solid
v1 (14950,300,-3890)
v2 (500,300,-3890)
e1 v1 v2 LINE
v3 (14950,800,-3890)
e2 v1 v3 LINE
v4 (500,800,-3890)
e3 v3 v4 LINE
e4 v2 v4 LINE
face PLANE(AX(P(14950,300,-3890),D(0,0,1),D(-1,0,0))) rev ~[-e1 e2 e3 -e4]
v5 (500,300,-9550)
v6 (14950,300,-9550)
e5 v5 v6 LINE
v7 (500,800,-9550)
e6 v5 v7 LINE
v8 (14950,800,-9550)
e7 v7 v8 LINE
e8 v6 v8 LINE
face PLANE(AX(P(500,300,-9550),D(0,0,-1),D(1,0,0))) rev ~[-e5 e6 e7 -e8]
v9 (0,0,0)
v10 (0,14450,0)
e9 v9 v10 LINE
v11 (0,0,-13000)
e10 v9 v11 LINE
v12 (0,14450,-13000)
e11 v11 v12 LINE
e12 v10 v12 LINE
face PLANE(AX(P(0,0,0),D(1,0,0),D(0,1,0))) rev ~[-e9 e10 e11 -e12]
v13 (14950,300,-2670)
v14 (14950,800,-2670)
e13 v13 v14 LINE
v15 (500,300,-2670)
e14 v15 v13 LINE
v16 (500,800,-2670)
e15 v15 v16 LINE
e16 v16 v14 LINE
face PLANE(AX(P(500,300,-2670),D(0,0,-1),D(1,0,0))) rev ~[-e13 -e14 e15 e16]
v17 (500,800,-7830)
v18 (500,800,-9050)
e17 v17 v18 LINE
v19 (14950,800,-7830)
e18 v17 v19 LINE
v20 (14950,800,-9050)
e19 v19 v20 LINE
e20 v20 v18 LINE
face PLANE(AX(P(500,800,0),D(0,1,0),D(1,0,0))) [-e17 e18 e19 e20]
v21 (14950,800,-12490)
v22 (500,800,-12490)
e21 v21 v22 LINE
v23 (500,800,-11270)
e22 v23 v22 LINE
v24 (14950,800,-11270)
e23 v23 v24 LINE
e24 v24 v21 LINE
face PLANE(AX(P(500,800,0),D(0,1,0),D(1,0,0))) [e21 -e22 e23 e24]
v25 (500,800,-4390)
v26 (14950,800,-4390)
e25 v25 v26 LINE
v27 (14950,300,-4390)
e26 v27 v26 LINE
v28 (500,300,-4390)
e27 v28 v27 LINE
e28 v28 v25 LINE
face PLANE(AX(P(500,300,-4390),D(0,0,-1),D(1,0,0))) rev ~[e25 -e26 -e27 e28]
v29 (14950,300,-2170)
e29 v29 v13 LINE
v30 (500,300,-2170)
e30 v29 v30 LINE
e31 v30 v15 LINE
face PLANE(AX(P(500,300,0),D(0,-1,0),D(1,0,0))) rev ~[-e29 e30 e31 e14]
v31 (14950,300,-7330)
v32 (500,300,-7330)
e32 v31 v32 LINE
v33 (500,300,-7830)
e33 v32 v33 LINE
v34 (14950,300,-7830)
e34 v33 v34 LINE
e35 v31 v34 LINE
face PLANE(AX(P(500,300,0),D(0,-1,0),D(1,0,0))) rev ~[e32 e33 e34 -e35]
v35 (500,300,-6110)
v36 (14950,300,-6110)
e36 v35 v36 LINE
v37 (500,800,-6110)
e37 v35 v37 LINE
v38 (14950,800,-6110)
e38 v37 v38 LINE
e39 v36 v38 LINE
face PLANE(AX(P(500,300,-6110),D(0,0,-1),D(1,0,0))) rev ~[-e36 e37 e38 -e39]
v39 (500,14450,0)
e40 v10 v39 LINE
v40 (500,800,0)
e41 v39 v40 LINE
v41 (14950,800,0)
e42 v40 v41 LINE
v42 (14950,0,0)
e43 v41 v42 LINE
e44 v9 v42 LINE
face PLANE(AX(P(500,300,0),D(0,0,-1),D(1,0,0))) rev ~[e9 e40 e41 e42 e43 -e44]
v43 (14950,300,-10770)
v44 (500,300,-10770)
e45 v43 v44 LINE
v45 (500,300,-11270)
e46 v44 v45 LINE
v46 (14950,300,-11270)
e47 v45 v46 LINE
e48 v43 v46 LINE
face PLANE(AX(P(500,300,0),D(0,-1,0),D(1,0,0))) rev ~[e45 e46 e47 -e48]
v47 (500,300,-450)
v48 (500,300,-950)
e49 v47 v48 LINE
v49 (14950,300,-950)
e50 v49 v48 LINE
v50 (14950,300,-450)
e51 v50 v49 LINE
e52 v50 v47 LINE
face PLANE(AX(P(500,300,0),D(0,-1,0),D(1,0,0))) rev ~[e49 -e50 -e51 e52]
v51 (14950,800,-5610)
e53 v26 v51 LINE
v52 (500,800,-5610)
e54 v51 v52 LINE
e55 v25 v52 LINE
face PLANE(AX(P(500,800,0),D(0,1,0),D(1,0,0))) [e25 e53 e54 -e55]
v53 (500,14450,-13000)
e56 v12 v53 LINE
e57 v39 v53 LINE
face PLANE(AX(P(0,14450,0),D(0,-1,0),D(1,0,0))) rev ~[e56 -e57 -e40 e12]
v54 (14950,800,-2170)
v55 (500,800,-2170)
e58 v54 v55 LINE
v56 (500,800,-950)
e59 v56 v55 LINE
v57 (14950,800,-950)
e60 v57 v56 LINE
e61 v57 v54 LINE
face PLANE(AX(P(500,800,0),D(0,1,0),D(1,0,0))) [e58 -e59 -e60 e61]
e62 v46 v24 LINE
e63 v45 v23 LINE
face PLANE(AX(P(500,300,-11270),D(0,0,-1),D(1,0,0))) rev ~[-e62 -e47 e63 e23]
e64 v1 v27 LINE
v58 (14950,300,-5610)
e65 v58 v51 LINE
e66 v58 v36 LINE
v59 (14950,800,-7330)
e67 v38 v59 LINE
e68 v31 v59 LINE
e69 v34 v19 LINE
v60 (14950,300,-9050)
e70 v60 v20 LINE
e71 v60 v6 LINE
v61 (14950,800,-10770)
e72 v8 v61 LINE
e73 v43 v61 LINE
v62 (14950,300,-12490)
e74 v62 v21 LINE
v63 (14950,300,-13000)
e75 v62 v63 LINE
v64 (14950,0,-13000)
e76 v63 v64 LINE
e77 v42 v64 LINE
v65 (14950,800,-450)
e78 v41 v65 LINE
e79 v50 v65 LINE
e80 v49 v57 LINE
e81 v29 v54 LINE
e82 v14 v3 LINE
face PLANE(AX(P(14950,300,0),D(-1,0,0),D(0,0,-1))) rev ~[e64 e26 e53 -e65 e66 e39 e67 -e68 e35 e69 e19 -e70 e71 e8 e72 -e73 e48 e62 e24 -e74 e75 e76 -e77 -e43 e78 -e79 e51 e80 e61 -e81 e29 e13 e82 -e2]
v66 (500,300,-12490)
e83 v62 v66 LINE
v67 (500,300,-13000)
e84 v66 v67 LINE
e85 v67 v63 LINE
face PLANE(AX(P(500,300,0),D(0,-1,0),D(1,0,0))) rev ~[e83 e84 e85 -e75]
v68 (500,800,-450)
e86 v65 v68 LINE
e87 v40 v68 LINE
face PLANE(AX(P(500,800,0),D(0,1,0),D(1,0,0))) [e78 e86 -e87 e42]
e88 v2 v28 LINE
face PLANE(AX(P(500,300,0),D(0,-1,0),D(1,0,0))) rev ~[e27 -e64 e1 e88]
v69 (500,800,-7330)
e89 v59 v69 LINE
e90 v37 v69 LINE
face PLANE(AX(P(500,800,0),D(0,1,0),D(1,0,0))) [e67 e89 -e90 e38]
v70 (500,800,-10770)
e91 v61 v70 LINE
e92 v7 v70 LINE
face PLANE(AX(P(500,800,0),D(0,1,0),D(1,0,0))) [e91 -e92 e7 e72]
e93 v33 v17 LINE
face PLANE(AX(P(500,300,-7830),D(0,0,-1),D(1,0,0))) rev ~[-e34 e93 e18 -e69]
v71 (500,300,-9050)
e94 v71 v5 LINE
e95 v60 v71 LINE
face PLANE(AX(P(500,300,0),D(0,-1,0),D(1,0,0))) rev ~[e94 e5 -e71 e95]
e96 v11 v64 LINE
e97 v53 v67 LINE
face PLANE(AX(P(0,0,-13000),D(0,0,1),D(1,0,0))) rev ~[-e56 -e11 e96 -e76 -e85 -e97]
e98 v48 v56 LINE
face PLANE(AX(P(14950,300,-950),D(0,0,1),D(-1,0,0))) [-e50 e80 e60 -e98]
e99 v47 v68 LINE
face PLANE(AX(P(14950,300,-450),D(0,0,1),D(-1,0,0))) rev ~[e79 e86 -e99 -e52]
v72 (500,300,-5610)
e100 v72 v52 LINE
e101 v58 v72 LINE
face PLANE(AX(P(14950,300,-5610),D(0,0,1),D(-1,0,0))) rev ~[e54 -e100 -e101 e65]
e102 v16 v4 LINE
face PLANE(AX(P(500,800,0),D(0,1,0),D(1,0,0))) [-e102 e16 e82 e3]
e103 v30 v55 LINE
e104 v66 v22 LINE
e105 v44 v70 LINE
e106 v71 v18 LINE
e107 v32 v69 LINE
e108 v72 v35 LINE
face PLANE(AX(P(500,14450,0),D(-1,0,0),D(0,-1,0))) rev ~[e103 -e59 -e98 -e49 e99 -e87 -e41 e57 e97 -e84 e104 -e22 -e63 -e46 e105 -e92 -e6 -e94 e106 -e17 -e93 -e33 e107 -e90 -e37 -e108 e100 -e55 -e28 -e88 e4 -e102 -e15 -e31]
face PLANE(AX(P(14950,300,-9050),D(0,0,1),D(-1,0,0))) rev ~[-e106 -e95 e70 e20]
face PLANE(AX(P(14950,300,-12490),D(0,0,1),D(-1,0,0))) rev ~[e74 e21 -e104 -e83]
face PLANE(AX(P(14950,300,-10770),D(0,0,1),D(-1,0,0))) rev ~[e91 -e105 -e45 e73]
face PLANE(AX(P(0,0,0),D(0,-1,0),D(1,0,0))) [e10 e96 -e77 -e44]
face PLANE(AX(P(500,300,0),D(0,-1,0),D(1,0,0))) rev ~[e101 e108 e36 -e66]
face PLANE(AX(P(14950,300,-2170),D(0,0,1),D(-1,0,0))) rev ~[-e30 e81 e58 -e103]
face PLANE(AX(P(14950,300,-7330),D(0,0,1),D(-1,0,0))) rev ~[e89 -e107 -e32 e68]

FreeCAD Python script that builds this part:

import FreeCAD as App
import Part
import Sketcher


def add_polygon(sketch, points):
    """Adds a closed chain of lines whose ends are joined by coincident constraints."""
    first, n = sketch.GeometryCount, len(points)
    for a, b in zip(points, points[1:] + points[:1]):
        sketch.addGeometry(Part.LineSegment(App.Vector(*a, 0), App.Vector(*b, 0)), False)
    for i in range(n):
        sketch.addConstraint(Sketcher.Constraint("Coincident", first + i, 2, first + (i + 1) % n, 1))

doc = App.newDocument("Part")
params = doc.addObject("Spreadsheet::Sheet", "Params")
for row, (alias, value) in enumerate([
    ("sketch1_width", "14450 mm"),
    ("sketch1_width2", "500 mm"),
    ("sketch1_height", "14150 mm"),
    ("pad1_length", "13000 mm"),
    ("sketch2_width", "14450 mm"),
    ("sketch2_height", "1220 mm"),
    ("pad2_length", "500 mm"),
    ("sketch3_height", "450 mm"),
    ("sketch3_width", "14450 mm"),
    ("pad3_length", "500 mm"),
], start=1):
    params.set(f"A{row}", alias)
    params.set(f"B{row}", "=" + value)
    params.setAlias(f"B{row}", alias)

body = doc.addObject("PartDesign::Body", "Body")

# Sketch on XY plane
sketch1 = doc.addObject("Sketcher::SketchObject", "Sketch")
body.addObject(sketch1)
sketch1.AttachmentSupport = (doc.XY_Plane, [""])
sketch1.MapMode = "FlatFace"
add_polygon(sketch1, [(0, 14450), (0, 0), (14950, 0), (14950, 300), (500, 300), (500, 14450)])  # lines 0-5
sketch1.addConstraint(Sketcher.Constraint("Vertical", 0))
sketch1.addConstraint(Sketcher.Constraint("Horizontal", 1))
sketch1.addConstraint(Sketcher.Constraint("Vertical", 2))
sketch1.addConstraint(Sketcher.Constraint("Horizontal", 3))
sketch1.addConstraint(Sketcher.Constraint("Vertical", 4))
sketch1.addConstraint(Sketcher.Constraint("Horizontal", 5))
sketch1.addConstraint(Sketcher.Constraint("Coincident", 0, 2, -1, 1))
sketch1.addConstraint(Sketcher.Constraint("Equal", 3, 0))
sketch1.addConstraint(Sketcher.Constraint("DistanceX", 3, 2, 3, 1, 14450.0))
sketch1.addConstraint(Sketcher.Constraint("DistanceX", 5, 2, 5, 1, 500.0))
sketch1.addConstraint(Sketcher.Constraint("DistanceY", 4, 1, 4, 2, 14150.0))
sketch1.setExpression("Constraints[14]", "Params.sketch1_width")
sketch1.setExpression("Constraints[15]", "Params.sketch1_width2")
sketch1.setExpression("Constraints[16]", "Params.sketch1_height")
pad1 = doc.addObject("PartDesign::Pad", "Pad")
body.addObject(pad1)
pad1.Profile = sketch1
pad1.setExpression("Length", "Params.pad1_length")
pad1.Reversed = True

# Sketch on XZ plane
sketch2 = doc.addObject("Sketcher::SketchObject", "Sketch001")
body.addObject(sketch2)
sketch2.AttachmentSupport = (doc.XZ_Plane, [""])
sketch2.MapMode = "FlatFace"
sketch2.AttachmentOffset = App.Placement(App.Vector(0, 0, -300), App.Rotation())
add_polygon(sketch2, [(500, -950), (14950, -950), (14950, -2170), (500, -2170)])  # lines 0-3
add_polygon(sketch2, [(500, -2670), (14950, -2670), (14950, -3890), (500, -3890)])  # lines 4-7
add_polygon(sketch2, [(500, -4390), (14950, -4390), (14950, -5610), (500, -5610)])  # lines 8-11
add_polygon(sketch2, [(500, -6110), (14950, -6110), (14950, -7330), (500, -7330)])  # lines 12-15
add_polygon(sketch2, [(500, -7830), (14950, -7830), (14950, -9050), (500, -9050)])  # lines 16-19
add_polygon(sketch2, [(500, -9550), (14950, -9550), (14950, -10770), (500, -10770)])  # lines 20-23
add_polygon(sketch2, [(500, -11270), (14950, -11270), (14950, -12490), (500, -12490)])  # lines 24-27
sketch2.addConstraint(Sketcher.Constraint("Horizontal", 0))
sketch2.addConstraint(Sketcher.Constraint("Vertical", 1))
sketch2.addConstraint(Sketcher.Constraint("Horizontal", 2))
sketch2.addConstraint(Sketcher.Constraint("Vertical", 3))
sketch2.addConstraint(Sketcher.Constraint("Horizontal", 4))
sketch2.addConstraint(Sketcher.Constraint("Vertical", 5))
sketch2.addConstraint(Sketcher.Constraint("Horizontal", 6))
sketch2.addConstraint(Sketcher.Constraint("Vertical", 7))
sketch2.addConstraint(Sketcher.Constraint("Horizontal", 8))
sketch2.addConstraint(Sketcher.Constraint("Vertical", 9))
sketch2.addConstraint(Sketcher.Constraint("Horizontal", 10))
sketch2.addConstraint(Sketcher.Constraint("Vertical", 11))
sketch2.addConstraint(Sketcher.Constraint("Horizontal", 12))
sketch2.addConstraint(Sketcher.Constraint("Vertical", 13))
sketch2.addConstraint(Sketcher.Constraint("Horizontal", 14))
sketch2.addConstraint(Sketcher.Constraint("Vertical", 15))
sketch2.addConstraint(Sketcher.Constraint("Horizontal", 16))
sketch2.addConstraint(Sketcher.Constraint("Vertical", 17))
sketch2.addConstraint(Sketcher.Constraint("Horizontal", 18))
sketch2.addConstraint(Sketcher.Constraint("Vertical", 19))
sketch2.addConstraint(Sketcher.Constraint("Horizontal", 20))
sketch2.addConstraint(Sketcher.Constraint("Vertical", 21))
sketch2.addConstraint(Sketcher.Constraint("Horizontal", 22))
sketch2.addConstraint(Sketcher.Constraint("Vertical", 23))
sketch2.addConstraint(Sketcher.Constraint("Horizontal", 24))
sketch2.addConstraint(Sketcher.Constraint("Vertical", 25))
sketch2.addConstraint(Sketcher.Constraint("Horizontal", 26))
sketch2.addConstraint(Sketcher.Constraint("Vertical", 27))
sketch2.addConstraint(Sketcher.Constraint("Vertical", 1, 2, 4, 2))
sketch2.addConstraint(Sketcher.Constraint("Vertical", 3, 2, 6, 2))
sketch2.addConstraint(Sketcher.Constraint("Vertical", 5, 2, 8, 2))
sketch2.addConstraint(Sketcher.Constraint("Vertical", 7, 2, 10, 2))
sketch2.addConstraint(Sketcher.Constraint("Vertical", 9, 2, 12, 2))
sketch2.addConstraint(Sketcher.Constraint("Vertical", 11, 2, 14, 2))
sketch2.addConstraint(Sketcher.Constraint("Vertical", 13, 2, 16, 2))
sketch2.addConstraint(Sketcher.Constraint("Vertical", 15, 2, 18, 2))
sketch2.addConstraint(Sketcher.Constraint("Vertical", 17, 2, 20, 2))
sketch2.addConstraint(Sketcher.Constraint("Vertical", 19, 2, 22, 2))
sketch2.addConstraint(Sketcher.Constraint("Vertical", 21, 2, 24, 2))
sketch2.addConstraint(Sketcher.Constraint("Vertical", 23, 2, 26, 2))
sketch2.addConstraint(Sketcher.Constraint("Equal", 3, 5))
sketch2.addConstraint(Sketcher.Constraint("Equal", 7, 9))
sketch2.addConstraint(Sketcher.Constraint("Equal", 11, 13))
sketch2.addConstraint(Sketcher.Constraint("Equal", 15, 17))
sketch2.addConstraint(Sketcher.Constraint("Equal", 19, 21))
sketch2.addConstraint(Sketcher.Constraint("Equal", 23, 25))
sketch2.addConstraint(Sketcher.Constraint("DistanceX", 0, 1, 0, 2, 14450.0))
sketch2.addConstraint(Sketcher.Constraint("DistanceY", 1, 2, 1, 1, 1220.0))
sketch2.addConstraint(Sketcher.Constraint("DistanceX", -1, 1, 2, 2, 500.0))
sketch2.addConstraint(Sketcher.Constraint("DistanceY", 4, 2, 1, 2, 500.0))
sketch2.addConstraint(Sketcher.Constraint("DistanceY", 8, 2, 5, 2, 500.0))
sketch2.addConstraint(Sketcher.Constraint("DistanceY", 12, 2, 9, 2, 500.0))
sketch2.addConstraint(Sketcher.Constraint("DistanceY", 16, 2, 13, 2, 500.0))
sketch2.addConstraint(Sketcher.Constraint("DistanceY", 20, 2, 17, 2, 500.0))
sketch2.addConstraint(Sketcher.Constraint("DistanceY", 24, 2, 21, 2, 500.0))
sketch2.addConstraint(Sketcher.Constraint("DistanceY", 0, 2, -1, 1, 950.0))
sketch2.setExpression("Constraints[74]", "Params.sketch2_width")
sketch2.setExpression("Constraints[75]", "Params.sketch2_height")
pad2 = doc.addObject("PartDesign::Pad", "Pad001")
body.addObject(pad2)
pad2.Profile = sketch2
pad2.setExpression("Length", "Params.pad2_length")
pad2.Reversed = True

# Sketch on XZ plane
sketch3 = doc.addObject("Sketcher::SketchObject", "Sketch002")
body.addObject(sketch3)
sketch3.AttachmentSupport = (doc.XZ_Plane, [""])
sketch3.MapMode = "FlatFace"
sketch3.AttachmentOffset = App.Placement(App.Vector(0, 0, -300), App.Rotation())
add_polygon(sketch3, [(500, -450), (500, 0), (14950, 0), (14950, -450)])  # lines 0-3
sketch3.addConstraint(Sketcher.Constraint("Vertical", 0))
sketch3.addConstraint(Sketcher.Constraint("Horizontal", 1))
sketch3.addConstraint(Sketcher.Constraint("Vertical", 2))
sketch3.addConstraint(Sketcher.Constraint("Horizontal", 3))
sketch3.addConstraint(Sketcher.Constraint("PointOnObject", 0, 2, -1))
sketch3.addConstraint(Sketcher.Constraint("DistanceY", 0, 1, 0, 2, 450.0))
sketch3.addConstraint(Sketcher.Constraint("DistanceX", 1, 1, 1, 2, 14450.0))
sketch3.addConstraint(Sketcher.Constraint("DistanceX", -1, 1, 0, 2, 500.0))
sketch3.setExpression("Constraints[9]", "Params.sketch3_height")
sketch3.setExpression("Constraints[10]", "Params.sketch3_width")
pad3 = doc.addObject("PartDesign::Pad", "Pad002")
body.addObject(pad3)
pad3.Profile = sketch3
pad3.setExpression("Length", "Params.pad3_length")
pad3.Reversed = True

doc.recompute()
